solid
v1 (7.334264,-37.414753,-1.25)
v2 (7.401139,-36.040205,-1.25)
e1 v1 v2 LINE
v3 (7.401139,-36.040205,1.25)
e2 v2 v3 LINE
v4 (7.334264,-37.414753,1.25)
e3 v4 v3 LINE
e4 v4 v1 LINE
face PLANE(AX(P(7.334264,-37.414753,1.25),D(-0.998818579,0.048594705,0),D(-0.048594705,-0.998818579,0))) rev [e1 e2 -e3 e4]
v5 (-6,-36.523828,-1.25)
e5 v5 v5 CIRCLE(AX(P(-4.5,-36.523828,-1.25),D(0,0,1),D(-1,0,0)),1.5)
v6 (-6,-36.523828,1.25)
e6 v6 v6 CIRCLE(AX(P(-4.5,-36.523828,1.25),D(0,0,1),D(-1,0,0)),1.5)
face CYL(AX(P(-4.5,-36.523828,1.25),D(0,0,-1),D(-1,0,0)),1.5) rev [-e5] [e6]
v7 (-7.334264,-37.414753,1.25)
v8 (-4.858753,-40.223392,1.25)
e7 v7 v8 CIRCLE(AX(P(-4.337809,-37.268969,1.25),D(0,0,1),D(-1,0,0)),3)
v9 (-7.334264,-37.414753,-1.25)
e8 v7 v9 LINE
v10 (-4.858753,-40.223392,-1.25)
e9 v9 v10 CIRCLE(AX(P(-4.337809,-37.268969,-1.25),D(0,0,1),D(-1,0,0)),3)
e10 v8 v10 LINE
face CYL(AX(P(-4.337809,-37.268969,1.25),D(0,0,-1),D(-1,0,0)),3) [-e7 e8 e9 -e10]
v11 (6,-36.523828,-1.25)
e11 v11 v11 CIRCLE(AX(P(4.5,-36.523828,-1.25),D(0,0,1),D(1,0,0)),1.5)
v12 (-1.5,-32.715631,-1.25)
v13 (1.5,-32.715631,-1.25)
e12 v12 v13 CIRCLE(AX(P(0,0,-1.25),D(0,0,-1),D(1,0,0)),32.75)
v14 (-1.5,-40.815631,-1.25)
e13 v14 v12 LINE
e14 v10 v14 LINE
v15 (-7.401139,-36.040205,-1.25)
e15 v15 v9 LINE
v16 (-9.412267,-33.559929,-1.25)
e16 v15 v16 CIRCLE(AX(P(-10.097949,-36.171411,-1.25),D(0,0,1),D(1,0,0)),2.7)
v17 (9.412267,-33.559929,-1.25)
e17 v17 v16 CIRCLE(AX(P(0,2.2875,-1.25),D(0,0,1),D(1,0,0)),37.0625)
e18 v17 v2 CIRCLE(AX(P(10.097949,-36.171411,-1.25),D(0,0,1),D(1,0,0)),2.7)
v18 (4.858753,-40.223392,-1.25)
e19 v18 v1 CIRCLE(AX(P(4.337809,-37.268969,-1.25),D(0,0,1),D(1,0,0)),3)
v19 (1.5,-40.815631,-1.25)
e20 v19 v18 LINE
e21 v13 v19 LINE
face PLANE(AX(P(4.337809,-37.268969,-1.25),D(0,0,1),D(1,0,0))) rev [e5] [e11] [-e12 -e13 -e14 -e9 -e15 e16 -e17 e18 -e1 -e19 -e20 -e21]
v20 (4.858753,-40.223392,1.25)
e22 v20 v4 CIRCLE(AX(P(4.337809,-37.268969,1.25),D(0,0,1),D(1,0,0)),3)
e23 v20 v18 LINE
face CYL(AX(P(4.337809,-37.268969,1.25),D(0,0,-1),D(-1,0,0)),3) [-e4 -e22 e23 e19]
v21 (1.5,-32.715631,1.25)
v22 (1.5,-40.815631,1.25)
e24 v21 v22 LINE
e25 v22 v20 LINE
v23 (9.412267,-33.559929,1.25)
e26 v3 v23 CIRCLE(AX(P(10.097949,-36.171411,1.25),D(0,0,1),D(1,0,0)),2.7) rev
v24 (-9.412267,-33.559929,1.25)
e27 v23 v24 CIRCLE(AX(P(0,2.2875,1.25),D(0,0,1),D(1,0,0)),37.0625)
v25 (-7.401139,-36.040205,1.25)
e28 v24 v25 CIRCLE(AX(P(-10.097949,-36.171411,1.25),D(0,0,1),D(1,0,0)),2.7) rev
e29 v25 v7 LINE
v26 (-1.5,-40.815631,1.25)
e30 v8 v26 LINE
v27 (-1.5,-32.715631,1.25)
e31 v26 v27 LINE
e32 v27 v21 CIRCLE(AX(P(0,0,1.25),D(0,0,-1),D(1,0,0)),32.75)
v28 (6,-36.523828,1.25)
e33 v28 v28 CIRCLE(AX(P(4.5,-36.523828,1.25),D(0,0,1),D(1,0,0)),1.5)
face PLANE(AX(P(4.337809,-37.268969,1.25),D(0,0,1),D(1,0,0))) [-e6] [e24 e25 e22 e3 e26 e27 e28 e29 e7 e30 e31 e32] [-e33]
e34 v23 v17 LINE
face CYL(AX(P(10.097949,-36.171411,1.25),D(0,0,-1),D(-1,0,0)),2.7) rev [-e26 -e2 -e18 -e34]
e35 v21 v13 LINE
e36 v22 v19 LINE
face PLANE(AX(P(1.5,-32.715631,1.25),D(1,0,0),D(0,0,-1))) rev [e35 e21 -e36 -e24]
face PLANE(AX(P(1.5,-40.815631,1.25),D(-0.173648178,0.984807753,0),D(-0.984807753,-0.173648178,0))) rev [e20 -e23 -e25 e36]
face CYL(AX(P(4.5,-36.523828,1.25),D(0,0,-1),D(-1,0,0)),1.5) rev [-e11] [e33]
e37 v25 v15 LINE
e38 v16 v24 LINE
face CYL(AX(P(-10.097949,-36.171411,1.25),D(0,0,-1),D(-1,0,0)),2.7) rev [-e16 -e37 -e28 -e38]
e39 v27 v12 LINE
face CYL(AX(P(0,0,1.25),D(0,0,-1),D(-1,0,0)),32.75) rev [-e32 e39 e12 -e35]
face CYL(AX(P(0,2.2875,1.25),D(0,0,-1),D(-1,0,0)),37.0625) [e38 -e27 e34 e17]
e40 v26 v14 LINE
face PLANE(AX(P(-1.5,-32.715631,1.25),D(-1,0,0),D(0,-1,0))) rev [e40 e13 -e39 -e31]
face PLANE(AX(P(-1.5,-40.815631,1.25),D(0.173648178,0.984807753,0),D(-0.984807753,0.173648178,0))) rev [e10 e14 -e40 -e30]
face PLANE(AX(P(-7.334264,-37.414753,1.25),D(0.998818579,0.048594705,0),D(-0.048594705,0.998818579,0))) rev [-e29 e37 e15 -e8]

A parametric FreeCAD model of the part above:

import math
import FreeCAD as App
import Part
import Sketcher

V = App.Vector
Q = App.Units.Quantity


def edges_at(feature, points):
    """Names of the edges that pass closest to the given points."""
    edges = feature.Shape.Edges
    near = lambda p: min(range(len(edges)), key=lambda i: edges[i].distToShape(Part.Vertex(*p))[0])
    return sorted({f"Edge{near(p) + 1}" for p in points})

doc = App.newDocument("Part")
body = doc.addObject("PartDesign::Body", "Body")

# Sketch on XY plane
sketch1 = body.newObject("Sketcher::SketchObject", "Sketch")
sketch1.AttachmentSupport = (doc.getObject("XY_Plane"), [""])
sketch1.MapMode = "FlatFace"
sketch1.addGeometry(Part.LineSegment(V(7.334264, -37.414753, 0), V(7.5, -34.008215, 0)), False)
sketch1.addGeometry(Part.ArcOfCircle(Part.Circle(V(0, 2.2875, 0), V(0, 0, 1), 37.0625), math.radians(-78.324949), math.radians(258.324949)), False)
sketch1.addGeometry(Part.LineSegment(V(-7.5, -34.008215, 0), V(-7.334264, -37.414753, 0)), False)
sketch1.addGeometry(Part.ArcOfCircle(Part.Circle(V(-4.337809, -37.268969, 0), V(0, 0, 1), 3), math.radians(-177.214631), math.radians(-100)), False)
sketch1.addGeometry(Part.LineSegment(V(-4.858753, -40.223392, 0), V(-1.5, -40.815631, 0)), False)
sketch1.addGeometry(Part.LineSegment(V(-1.5, -40.815631, 0), V(-1.5, -32.715631, 0)), False)
sketch1.addGeometry(Part.ArcOfCircle(Part.Circle(V(0, 0, 0), V(0, 0, 1), 32.75), math.radians(-87.374847), math.radians(267.374847)), False)
sketch1.addGeometry(Part.LineSegment(V(1.5, -32.715631, 0), V(1.5, -40.815631, 0)), False)
sketch1.addGeometry(Part.LineSegment(V(1.5, -40.815631, 0), V(4.858753, -40.223392, 0)), False)
sketch1.addGeometry(Part.ArcOfCircle(Part.Circle(V(4.337809, -37.268969, 0), V(0, 0, 1), 3), math.radians(-80), math.radians(-2.785369)), False)
sketch1.addGeometry(Part.Circle(V(-4.5, -36.523828, 0), V(0, 0, 1), 1.5), False)
sketch1.addGeometry(Part.Circle(V(4.5, -36.523828, 0), V(0, 0, 1), 1.5), False)
sketch1.addConstraint(Sketcher.Constraint("Coincident", 0, 2, 1, 1))
sketch1.addConstraint(Sketcher.Constraint("Coincident", 1, 2, 2, 1))
sketch1.addConstraint(Sketcher.Constraint("Tangent", 2, 2, 3, 1))
sketch1.addConstraint(Sketcher.Constraint("Tangent", 3, 2, 4, 1))
sketch1.addConstraint(Sketcher.Constraint("Coincident", 4, 2, 5, 1))
sketch1.addConstraint(Sketcher.Constraint("Coincident", 5, 2, 6, 2))
sketch1.addConstraint(Sketcher.Constraint("Coincident", 6, 1, 7, 1))
sketch1.addConstraint(Sketcher.Constraint("Coincident", 7, 2, 8, 1))
sketch1.addConstraint(Sketcher.Constraint("Tangent", 8, 2, 9, 1))
sketch1.addConstraint(Sketcher.Constraint("Tangent", 9, 2, 0, 1))
sketch1.addConstraint(Sketcher.Constraint("Vertical", 5))
sketch1.addConstraint(Sketcher.Constraint("Vertical", 7))
sketch1.addConstraint(Sketcher.Constraint("Coincident", 6, 3, -1, 1))
sketch1.addConstraint(Sketcher.Constraint("Equal", 3, 9))
sketch1.addConstraint(Sketcher.Constraint("Equal", 10, 11))
sketch1.addConstraint(Sketcher.Constraint("Symmetric", 3, 3, 9, 3, -2))
sketch1.addConstraint(Sketcher.Constraint("Symmetric", 10, 3, 11, 3, -2))
sketch1.addConstraint(Sketcher.Constraint("Symmetric", 0, 2, 1, 2, -2))
sketch1.addConstraint(Sketcher.Constraint("Symmetric", 4, 2, 7, 2, -2))
sketch1.addConstraint(Sketcher.Constraint("Equal", 2, 4))
sketch1.addConstraint(Sketcher.Constraint("Diameter", 10, Q("3 mm")))
sketch1.addConstraint(Sketcher.Constraint("Radius", 3, Q("3 mm")))
sketch1.addConstraint(Sketcher.Constraint("Angle", 4, Q("-10 deg")))
sketch1.addConstraint(Sketcher.Constraint("Radius", 6, Q("32.75 mm")))
sketch1.addConstraint(Sketcher.Constraint("DistanceY", 5, 1, 5, 2, Q("8.1 mm")))
sketch1.addConstraint(Sketcher.Constraint("DistanceX", 10, 3, 11, 3, Q("9 mm")))
sketch1.addConstraint(Sketcher.Constraint("DistanceX", 11, 3, 0, 2, Q("3 mm")))
sketch1.addConstraint(Sketcher.Constraint("DistanceX", 10, 3, 4, 2, Q("3 mm")))
sketch1.addConstraint(Sketcher.Constraint("Radius", 1, Q("37.0625 mm")))
sketch1.addConstraint(Sketcher.Constraint("DistanceY", -1, 1, 1, 3, Q("2.2875 mm")))
sketch1.addConstraint(Sketcher.Constraint("DistanceY", 3, 3, 10, 3, Q("0.745141 mm")))
pad1 = body.newObject("PartDesign::Pad", "Pad")
pad1.Profile = sketch1
pad1.Length = 2.5
pad1.Midplane = True
doc.recompute()

fillet = body.newObject("PartDesign::Fillet", "Fillet")
fillet.Base = (pad1, edges_at(pad1, [(-7.5, -34.008, 0), (7.5, -34.008, 0)]))
fillet.Radius = 2.7

doc.recompute()
